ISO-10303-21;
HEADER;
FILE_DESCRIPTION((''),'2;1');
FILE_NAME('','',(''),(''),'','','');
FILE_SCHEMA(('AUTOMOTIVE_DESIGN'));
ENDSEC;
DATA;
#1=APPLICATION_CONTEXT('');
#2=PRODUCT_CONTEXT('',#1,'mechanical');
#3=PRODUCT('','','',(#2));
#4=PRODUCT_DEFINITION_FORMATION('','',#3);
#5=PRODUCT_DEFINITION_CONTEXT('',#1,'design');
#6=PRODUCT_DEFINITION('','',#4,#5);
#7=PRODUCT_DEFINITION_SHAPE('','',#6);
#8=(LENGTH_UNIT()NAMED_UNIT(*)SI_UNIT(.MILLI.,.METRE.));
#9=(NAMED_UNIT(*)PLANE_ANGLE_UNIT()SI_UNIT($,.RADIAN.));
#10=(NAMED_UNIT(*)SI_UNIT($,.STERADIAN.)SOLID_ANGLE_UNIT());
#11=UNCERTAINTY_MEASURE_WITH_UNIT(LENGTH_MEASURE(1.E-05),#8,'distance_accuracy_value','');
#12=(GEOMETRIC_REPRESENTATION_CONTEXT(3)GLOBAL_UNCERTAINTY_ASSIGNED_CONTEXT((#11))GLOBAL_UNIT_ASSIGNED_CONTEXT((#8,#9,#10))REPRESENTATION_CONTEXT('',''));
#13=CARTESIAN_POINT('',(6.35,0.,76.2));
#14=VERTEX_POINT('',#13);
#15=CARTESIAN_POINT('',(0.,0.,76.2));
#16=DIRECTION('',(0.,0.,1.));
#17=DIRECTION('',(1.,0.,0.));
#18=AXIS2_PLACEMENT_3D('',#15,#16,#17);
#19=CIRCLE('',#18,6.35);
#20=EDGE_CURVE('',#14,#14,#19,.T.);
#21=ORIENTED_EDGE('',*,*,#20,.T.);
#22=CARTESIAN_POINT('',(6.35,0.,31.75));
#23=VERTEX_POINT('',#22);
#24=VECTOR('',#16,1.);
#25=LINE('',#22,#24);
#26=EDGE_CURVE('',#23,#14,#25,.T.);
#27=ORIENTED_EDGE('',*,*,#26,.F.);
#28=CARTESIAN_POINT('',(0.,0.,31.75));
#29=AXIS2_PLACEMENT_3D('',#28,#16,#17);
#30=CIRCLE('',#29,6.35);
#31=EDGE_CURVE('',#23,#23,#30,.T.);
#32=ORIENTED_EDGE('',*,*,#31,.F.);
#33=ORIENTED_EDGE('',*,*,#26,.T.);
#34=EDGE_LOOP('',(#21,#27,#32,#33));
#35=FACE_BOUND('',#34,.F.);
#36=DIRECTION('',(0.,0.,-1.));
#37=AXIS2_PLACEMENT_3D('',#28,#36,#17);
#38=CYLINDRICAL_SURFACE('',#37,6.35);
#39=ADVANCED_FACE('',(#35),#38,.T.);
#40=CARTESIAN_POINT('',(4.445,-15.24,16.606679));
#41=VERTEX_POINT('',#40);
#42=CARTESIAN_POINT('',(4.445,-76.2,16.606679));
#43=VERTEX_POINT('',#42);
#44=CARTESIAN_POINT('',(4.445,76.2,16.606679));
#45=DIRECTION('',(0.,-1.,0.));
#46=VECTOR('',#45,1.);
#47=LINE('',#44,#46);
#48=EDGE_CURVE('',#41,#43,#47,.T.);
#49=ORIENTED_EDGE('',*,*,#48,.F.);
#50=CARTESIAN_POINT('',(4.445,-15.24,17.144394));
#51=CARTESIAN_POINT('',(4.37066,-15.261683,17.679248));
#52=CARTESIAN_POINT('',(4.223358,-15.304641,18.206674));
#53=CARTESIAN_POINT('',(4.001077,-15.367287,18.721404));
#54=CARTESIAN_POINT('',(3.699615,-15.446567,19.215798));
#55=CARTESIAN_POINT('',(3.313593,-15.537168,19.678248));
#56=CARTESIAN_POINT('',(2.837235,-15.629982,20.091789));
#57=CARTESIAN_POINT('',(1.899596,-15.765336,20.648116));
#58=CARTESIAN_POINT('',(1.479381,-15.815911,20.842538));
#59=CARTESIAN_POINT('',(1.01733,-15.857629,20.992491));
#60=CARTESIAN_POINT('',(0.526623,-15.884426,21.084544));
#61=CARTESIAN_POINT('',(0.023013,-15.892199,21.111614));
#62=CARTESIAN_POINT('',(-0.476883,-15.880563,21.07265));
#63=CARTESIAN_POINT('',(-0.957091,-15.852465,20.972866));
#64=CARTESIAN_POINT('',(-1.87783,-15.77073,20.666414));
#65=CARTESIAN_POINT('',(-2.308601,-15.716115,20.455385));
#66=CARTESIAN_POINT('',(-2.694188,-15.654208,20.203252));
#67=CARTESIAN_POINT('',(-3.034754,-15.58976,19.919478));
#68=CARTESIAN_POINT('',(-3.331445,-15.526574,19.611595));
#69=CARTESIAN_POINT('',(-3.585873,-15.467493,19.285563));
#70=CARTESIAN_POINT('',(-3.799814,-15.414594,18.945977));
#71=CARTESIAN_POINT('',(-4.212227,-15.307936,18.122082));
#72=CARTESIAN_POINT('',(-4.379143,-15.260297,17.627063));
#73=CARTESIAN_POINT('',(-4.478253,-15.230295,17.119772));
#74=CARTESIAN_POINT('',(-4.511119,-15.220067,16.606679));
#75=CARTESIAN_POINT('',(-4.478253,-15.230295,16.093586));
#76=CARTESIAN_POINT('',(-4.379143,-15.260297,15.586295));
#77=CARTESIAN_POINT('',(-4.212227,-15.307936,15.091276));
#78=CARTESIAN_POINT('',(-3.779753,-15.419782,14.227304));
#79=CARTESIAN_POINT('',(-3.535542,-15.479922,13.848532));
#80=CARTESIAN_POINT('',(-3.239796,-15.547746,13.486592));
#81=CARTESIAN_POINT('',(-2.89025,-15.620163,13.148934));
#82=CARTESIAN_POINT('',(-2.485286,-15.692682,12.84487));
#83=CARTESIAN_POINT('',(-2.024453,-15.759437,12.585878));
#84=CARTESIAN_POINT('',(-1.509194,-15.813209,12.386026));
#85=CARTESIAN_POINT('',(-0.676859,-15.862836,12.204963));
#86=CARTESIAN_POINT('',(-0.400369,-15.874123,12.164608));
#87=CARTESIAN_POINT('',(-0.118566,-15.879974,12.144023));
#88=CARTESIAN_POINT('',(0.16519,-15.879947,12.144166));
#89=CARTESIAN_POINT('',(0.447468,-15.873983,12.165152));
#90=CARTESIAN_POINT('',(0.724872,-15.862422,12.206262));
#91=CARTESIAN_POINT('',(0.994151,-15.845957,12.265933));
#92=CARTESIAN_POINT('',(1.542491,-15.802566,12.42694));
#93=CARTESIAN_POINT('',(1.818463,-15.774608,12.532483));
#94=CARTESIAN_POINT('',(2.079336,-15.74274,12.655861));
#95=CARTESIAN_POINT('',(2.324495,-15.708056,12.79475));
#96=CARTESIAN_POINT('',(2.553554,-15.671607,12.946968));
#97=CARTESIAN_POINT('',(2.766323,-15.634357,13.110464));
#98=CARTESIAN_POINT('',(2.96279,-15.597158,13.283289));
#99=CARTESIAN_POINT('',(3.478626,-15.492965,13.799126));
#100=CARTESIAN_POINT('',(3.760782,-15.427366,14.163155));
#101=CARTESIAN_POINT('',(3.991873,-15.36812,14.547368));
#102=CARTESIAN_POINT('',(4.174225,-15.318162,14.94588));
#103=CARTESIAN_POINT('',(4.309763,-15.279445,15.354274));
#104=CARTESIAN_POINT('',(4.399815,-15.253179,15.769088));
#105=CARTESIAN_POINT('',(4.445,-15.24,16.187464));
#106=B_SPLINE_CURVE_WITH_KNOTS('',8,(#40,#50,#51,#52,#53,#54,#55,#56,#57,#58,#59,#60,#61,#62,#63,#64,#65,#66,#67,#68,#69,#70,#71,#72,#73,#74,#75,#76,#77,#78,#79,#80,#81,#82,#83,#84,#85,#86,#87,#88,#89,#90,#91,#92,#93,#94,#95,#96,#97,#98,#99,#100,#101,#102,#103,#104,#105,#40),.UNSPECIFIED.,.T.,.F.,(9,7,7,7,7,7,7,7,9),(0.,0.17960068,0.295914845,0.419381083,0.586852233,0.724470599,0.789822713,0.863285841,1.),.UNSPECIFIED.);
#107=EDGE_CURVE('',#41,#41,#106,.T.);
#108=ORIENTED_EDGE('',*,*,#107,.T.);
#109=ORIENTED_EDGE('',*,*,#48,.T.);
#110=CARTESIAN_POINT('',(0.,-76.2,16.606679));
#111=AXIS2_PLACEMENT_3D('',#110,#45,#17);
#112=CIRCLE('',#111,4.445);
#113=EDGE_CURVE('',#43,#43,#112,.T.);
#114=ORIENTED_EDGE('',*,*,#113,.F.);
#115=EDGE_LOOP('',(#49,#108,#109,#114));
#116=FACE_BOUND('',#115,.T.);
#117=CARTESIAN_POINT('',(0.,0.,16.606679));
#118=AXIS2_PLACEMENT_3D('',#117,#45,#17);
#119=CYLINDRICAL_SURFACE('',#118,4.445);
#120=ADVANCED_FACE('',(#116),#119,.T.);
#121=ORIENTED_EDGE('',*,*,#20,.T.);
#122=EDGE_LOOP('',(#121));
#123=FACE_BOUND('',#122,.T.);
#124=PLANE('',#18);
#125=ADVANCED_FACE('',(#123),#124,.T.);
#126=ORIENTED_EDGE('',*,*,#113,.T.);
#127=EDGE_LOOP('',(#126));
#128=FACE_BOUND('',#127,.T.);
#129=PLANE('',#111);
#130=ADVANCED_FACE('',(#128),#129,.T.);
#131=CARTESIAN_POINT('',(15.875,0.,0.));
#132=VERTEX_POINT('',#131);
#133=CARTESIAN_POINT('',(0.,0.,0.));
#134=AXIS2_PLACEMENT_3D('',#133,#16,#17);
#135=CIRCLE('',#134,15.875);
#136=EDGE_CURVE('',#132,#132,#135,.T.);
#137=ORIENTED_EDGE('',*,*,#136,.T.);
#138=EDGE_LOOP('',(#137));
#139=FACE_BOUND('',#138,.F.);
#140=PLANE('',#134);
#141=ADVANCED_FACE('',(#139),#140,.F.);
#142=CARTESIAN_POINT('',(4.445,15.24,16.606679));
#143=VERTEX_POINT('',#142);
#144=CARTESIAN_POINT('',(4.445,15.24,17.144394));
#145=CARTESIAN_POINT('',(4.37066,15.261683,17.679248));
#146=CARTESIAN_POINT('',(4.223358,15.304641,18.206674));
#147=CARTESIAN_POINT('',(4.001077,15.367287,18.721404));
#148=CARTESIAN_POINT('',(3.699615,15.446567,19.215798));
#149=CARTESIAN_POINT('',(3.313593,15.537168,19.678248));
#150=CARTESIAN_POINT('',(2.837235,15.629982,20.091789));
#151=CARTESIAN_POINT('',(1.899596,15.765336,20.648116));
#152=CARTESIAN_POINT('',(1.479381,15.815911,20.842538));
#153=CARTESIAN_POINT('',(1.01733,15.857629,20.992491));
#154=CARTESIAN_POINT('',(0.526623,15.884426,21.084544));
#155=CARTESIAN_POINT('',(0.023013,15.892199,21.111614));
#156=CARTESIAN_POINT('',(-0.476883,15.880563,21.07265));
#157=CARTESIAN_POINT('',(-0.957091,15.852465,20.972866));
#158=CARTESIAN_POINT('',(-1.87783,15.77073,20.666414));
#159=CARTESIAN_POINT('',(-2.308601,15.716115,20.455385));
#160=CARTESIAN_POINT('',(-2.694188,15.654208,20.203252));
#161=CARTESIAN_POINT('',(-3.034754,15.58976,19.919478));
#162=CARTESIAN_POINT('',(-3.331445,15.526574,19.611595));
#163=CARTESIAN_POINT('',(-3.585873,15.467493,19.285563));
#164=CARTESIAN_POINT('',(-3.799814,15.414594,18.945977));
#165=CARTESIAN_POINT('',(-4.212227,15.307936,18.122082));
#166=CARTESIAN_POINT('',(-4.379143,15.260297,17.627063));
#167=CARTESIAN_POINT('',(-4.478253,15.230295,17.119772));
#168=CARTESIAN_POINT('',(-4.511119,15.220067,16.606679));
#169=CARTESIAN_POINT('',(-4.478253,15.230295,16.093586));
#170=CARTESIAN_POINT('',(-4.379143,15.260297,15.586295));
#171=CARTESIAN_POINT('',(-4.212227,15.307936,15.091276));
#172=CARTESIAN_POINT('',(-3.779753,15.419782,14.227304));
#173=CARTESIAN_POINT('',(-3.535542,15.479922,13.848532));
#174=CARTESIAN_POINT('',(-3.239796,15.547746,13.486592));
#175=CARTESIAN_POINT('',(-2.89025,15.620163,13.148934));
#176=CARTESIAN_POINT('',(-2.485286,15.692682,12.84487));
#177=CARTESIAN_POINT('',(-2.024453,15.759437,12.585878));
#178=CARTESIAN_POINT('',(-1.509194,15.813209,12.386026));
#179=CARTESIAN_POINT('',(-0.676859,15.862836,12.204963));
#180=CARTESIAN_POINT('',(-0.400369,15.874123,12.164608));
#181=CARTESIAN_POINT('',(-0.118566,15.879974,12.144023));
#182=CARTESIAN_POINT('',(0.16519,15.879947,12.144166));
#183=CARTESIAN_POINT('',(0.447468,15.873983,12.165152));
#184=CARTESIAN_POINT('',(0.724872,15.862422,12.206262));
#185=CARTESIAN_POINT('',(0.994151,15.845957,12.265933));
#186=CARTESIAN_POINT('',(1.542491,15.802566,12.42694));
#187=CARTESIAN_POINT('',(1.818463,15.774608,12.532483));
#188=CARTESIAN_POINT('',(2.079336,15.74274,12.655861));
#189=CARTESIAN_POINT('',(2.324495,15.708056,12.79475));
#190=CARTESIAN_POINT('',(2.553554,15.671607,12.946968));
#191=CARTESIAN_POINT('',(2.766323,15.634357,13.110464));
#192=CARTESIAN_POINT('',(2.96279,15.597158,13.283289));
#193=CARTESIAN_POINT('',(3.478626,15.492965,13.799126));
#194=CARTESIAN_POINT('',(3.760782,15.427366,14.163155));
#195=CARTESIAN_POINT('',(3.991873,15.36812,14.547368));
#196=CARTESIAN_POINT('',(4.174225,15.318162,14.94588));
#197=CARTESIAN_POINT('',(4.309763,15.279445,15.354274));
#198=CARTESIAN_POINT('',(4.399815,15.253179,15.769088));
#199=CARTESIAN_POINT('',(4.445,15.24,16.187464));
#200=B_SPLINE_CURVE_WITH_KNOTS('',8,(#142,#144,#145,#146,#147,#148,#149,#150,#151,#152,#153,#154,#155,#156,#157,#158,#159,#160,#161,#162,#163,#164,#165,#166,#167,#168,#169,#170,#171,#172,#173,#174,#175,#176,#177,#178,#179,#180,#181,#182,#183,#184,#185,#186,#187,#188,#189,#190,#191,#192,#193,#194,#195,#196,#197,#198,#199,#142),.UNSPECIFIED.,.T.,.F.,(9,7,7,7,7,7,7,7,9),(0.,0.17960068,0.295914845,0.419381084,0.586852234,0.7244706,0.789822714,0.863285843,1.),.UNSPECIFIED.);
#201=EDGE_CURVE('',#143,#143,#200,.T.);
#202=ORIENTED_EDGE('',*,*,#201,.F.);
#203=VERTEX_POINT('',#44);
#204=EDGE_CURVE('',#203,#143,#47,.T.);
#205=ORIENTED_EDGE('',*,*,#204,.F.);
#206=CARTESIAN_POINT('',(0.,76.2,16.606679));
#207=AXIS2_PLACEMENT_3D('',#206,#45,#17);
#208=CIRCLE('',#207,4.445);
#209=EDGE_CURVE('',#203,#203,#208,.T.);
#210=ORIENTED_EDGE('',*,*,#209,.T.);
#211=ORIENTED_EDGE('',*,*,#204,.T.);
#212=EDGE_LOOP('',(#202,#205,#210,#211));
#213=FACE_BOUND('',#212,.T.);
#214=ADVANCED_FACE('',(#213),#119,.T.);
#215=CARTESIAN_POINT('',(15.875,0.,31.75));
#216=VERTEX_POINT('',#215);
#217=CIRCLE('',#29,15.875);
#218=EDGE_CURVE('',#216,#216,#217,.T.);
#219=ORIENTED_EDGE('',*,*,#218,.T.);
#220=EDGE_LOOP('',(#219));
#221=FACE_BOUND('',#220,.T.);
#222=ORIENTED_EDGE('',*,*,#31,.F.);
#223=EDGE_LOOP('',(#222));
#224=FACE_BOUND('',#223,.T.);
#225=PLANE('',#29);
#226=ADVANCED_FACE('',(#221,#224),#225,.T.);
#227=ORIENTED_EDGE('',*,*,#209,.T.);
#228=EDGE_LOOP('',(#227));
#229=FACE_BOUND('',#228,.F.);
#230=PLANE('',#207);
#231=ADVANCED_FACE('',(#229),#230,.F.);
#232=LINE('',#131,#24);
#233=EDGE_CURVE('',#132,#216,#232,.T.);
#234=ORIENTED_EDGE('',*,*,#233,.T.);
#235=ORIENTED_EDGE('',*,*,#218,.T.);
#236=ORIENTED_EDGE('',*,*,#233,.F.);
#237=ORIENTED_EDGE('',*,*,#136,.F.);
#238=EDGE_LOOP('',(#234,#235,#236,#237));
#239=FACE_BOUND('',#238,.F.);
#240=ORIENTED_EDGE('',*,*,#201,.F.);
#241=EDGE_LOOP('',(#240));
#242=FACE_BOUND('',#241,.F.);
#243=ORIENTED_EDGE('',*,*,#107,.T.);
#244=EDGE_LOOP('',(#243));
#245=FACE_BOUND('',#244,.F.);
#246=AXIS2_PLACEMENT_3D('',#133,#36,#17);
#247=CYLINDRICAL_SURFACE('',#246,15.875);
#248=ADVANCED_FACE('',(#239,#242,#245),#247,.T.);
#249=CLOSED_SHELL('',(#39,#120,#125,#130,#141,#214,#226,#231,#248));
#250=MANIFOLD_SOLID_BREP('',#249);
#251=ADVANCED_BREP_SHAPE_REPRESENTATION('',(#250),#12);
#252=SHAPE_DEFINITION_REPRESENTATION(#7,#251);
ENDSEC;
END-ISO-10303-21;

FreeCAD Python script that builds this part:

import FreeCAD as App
import Part
import Sketcher
Q = App.Units.Quantity

doc = App.newDocument("Part")
params = doc.addObject("Spreadsheet::Sheet", "Params")
for row, (alias, value) in enumerate([
    ("sketch1_diameter", "1.25 in"),
    ("pad1_length", "1.25 in"),
    ("sketch2_diameter", "0.5 in"),
    ("pad2_length", "1.75 in"),
    ("sketch3_diameter", "0.35 in"),
    ("pad3_length", "6 in"),
], start=1):
    params.set(f"A{row}", alias)
    params.set(f"B{row}", "=" + value)
    params.setAlias(f"B{row}", alias)

body = doc.addObject("PartDesign::Body", "Body")

sketch1 = doc.addObject("Sketcher::SketchObject", "Sketch")
body.addObject(sketch1)
sketch1.AttachmentSupport = (doc.XY_Plane, [""])
sketch1.MapMode = "FlatFace"
sketch1.addGeometry(Part.Circle(App.Vector(0, 0, 0), App.Vector(0, 0, 1), 16), False)
sketch1.addConstraint([
    Sketcher.Constraint("Coincident", 0, 3, -1, 1),
    Sketcher.Constraint("Diameter", 0, Q("1.25 in")),
])
sketch1.setExpression("Constraints[1]", "Params.sketch1_diameter")
pad1 = doc.addObject("PartDesign::Pad", "Pad")
body.addObject(pad1)
pad1.Profile = sketch1
pad1.setExpression("Length", "Params.pad1_length")

sketch2 = doc.addObject("Sketcher::SketchObject", "Sketch001")
body.addObject(sketch2)
sketch2.AttachmentSupport = (doc.XY_Plane, [""])
sketch2.MapMode = "FlatFace"
sketch2.AttachmentOffset = App.Placement(App.Vector(0, 0, 1.25 * 25.4), App.Rotation())
sketch2.addGeometry(Part.Circle(App.Vector(0, 0, 0), App.Vector(0, 0, 1), 6), False)
sketch2.addConstraint([
    Sketcher.Constraint("Coincident", 0, 3, -1, 1),
    Sketcher.Constraint("Diameter", 0, Q("0.5 in")),
])
sketch2.setExpression("Constraints[1]", "Params.sketch2_diameter")
pad2 = doc.addObject("PartDesign::Pad", "Pad001")
body.addObject(pad2)
pad2.Profile = sketch2
pad2.setExpression("Length", "Params.pad2_length")

sketch3 = doc.addObject("Sketcher::SketchObject", "Sketch002")
body.addObject(sketch3)
sketch3.AttachmentSupport = (doc.XZ_Plane, [""])
sketch3.MapMode = "FlatFace"
sketch3.addGeometry(Part.Circle(App.Vector(0, 16.6, 0), App.Vector(0, 0, 1), 4.4), False)
sketch3.addConstraint([
    Sketcher.Constraint("PointOnObject", 0, 3, -2),
    Sketcher.Constraint("Diameter", 0, Q("0.35 in")),
    Sketcher.Constraint("DistanceY", -1, 1, 0, 3, Q("16.606679 mm")),
])
sketch3.setExpression("Constraints[1]", "Params.sketch3_diameter")
pad3 = doc.addObject("PartDesign::Pad", "Pad002")
body.addObject(pad3)
pad3.Profile = sketch3
pad3.setExpression("Length", "Params.pad3_length")
pad3.Midplane = True

doc.recompute()
